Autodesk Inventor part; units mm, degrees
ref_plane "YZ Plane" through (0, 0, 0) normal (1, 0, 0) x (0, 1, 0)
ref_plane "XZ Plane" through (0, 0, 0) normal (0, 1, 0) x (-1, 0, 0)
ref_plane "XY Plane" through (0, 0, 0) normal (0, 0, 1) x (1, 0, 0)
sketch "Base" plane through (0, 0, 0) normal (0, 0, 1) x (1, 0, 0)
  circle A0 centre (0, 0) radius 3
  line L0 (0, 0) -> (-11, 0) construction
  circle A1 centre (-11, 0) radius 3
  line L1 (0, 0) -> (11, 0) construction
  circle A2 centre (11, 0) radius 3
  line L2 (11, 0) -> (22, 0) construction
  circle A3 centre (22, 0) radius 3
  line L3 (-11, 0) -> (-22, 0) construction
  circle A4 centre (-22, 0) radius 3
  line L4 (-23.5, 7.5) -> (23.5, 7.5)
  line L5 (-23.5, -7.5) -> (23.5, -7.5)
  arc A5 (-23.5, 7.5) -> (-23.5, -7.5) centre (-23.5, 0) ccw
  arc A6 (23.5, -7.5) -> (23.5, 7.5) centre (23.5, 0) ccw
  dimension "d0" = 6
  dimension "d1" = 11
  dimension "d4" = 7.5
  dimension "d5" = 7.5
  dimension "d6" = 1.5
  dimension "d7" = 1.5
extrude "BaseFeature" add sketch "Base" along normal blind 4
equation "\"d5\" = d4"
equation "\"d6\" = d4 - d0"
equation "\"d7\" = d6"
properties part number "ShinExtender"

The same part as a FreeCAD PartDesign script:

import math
import FreeCAD as App
import Part
import Sketcher

doc = App.newDocument("Part")
body = doc.addObject("PartDesign::Body", "Body")

sketch1 = body.newObject("Sketcher::SketchObject", "Sketch")
sketch1.AttachmentSupport = (doc.getObject("XY_Plane"), [""])
sketch1.MapMode = "FlatFace"
sketch1.addGeometry([
    Part.LineSegment(App.Vector(23.5, 7.5, 0), App.Vector(-23.5, 7.5, 0)),
    Part.ArcOfCircle(Part.Circle(App.Vector(-23.5, 0, 0), App.Vector(0, 0, 1), 7.5), math.radians(90), math.radians(270)),
    Part.LineSegment(App.Vector(-23.5, -7.5, 0), App.Vector(23.5, -7.5, 0)),
    Part.ArcOfCircle(Part.Circle(App.Vector(23.5, 0, 0), App.Vector(0, 0, 1), 7.5), math.radians(-90), math.radians(90)),
    Part.Circle(App.Vector(-22, 0, 0), App.Vector(0, 0, 1), 3),
    Part.Circle(App.Vector(-11, 0, 0), App.Vector(0, 0, 1), 3),
    Part.Circle(App.Vector(0, 0, 0), App.Vector(0, 0, 1), 3),
    Part.Circle(App.Vector(11, 0, 0), App.Vector(0, 0, 1), 3),
    Part.Circle(App.Vector(22, 0, 0), App.Vector(0, 0, 1), 3),
], False)
sketch1.addConstraint([
    Sketcher.Constraint("Tangent", 0, 2, 1, 1),
    Sketcher.Constraint("Tangent", 1, 2, 2, 1),
    Sketcher.Constraint("Tangent", 2, 2, 3, 1),
    Sketcher.Constraint("Tangent", 3, 2, 0, 1),
    Sketcher.Constraint("Horizontal", 0),
    Sketcher.Constraint("Horizontal", 2),
    Sketcher.Constraint("Coincident", 6, 3, -1, 1),
    Sketcher.Constraint("Equal", 4, 5),
    Sketcher.Constraint("Equal", 5, 6),
    Sketcher.Constraint("Equal", 6, 7),
    Sketcher.Constraint("Equal", 7, 8),
    Sketcher.Constraint("Symmetric", 1, 3, 3, 3, -1, 1),
    Sketcher.Constraint("Symmetric", 5, 3, 7, 3, -1, 1),
    Sketcher.Constraint("Symmetric", 4, 3, 8, 3, -1, 1),
    Sketcher.Constraint("PointOnObject", 4, 3, -1),
    Sketcher.Constraint("PointOnObject", 5, 3, -1),
    Sketcher.Constraint("Diameter", 4, 6.0),
    Sketcher.Constraint("Radius", 1, 7.5),
    Sketcher.Constraint("DistanceX", 5, 3, -1, 1, 11.0),
    Sketcher.Constraint("DistanceX", 4, 3, 5, 3, 11.0),
    Sketcher.Constraint("DistanceX", 1, 3, 4, 3, 1.5),
])
pad1 = body.newObject("PartDesign::Pad", "Pad")
pad1.Profile = sketch1
pad1.Length = 4

doc.recompute()
